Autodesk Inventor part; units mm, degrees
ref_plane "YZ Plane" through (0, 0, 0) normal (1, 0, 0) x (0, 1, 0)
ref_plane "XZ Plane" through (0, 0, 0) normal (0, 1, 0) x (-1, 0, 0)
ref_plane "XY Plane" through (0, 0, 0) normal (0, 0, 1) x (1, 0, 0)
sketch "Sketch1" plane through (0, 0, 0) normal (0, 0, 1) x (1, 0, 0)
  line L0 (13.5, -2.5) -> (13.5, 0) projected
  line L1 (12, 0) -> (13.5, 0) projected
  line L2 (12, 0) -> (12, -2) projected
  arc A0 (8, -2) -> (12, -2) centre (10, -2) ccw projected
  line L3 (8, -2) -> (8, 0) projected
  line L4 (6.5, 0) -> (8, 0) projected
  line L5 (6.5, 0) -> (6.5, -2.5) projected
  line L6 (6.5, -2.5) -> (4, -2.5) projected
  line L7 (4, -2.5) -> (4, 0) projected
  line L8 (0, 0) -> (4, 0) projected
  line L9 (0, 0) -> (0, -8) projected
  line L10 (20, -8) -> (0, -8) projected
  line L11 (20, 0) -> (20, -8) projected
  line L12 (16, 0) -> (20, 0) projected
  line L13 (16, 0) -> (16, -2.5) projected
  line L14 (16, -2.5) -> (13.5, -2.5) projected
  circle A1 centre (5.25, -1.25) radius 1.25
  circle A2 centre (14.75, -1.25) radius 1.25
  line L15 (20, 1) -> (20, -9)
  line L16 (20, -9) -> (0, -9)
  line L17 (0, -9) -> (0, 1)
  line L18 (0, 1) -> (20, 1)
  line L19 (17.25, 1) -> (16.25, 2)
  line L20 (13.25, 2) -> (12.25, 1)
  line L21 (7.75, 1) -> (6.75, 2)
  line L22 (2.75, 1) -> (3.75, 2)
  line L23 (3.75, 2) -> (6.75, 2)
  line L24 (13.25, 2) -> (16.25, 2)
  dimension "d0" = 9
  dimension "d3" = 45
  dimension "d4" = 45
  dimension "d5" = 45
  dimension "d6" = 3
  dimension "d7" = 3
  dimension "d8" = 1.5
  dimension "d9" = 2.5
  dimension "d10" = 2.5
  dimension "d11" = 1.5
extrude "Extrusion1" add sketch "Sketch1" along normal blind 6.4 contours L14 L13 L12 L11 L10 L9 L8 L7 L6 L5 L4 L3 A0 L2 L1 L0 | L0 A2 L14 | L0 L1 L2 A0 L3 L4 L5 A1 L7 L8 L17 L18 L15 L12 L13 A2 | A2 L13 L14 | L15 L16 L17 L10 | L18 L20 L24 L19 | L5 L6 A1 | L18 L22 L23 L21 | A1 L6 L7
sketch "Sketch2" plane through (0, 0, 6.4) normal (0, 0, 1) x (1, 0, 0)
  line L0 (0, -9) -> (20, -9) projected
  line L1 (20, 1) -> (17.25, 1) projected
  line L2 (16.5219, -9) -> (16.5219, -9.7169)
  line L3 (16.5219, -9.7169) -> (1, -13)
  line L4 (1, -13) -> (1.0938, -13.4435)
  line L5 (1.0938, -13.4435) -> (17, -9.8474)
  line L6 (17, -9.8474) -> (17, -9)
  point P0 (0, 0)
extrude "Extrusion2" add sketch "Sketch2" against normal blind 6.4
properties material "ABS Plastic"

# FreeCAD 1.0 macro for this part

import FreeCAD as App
import Part
import Sketcher

V = App.Vector
Q = App.Units.Quantity

doc = App.newDocument("Part")
body = doc.addObject("PartDesign::Body", "Body")

# Sketch on XY plane
sketch1 = body.newObject("Sketcher::SketchObject", "Sketch")
sketch1.AttachmentSupport = (doc.getObject("XY_Plane"), [""])
sketch1.MapMode = "FlatFace"
sketch1.addGeometry(Part.LineSegment(V(20, 1, 0), V(17.25, 1, 0)), False)
sketch1.addGeometry(Part.LineSegment(V(17.25, 1, 0), V(16.25, 2, 0)), False)
sketch1.addGeometry(Part.LineSegment(V(16.25, 2, 0), V(13.25, 2, 0)), False)
sketch1.addGeometry(Part.LineSegment(V(13.25, 2, 0), V(12.25, 1, 0)), False)
sketch1.addGeometry(Part.LineSegment(V(12.25, 1, 0), V(7.75, 1, 0)), False)
sketch1.addGeometry(Part.LineSegment(V(7.75, 1, 0), V(6.75, 2, 0)), False)
sketch1.addGeometry(Part.LineSegment(V(6.75, 2, 0), V(3.75, 2, 0)), False)
sketch1.addGeometry(Part.LineSegment(V(3.75, 2, 0), V(2.75, 1, 0)), False)
sketch1.addGeometry(Part.LineSegment(V(2.75, 1, 0), V(0, 1, 0)), False)
sketch1.addGeometry(Part.LineSegment(V(0, 1, 0), V(0, -9, 0)), False)
sketch1.addGeometry(Part.LineSegment(V(0, -9, 0), V(20, -9, 0)), False)
sketch1.addGeometry(Part.LineSegment(V(20, -9, 0), V(20, 1, 0)), False)
sketch1.addGeometry(Part.Circle(V(14.75, -1.25, 0), V(0, 0, 1), 1.25), False)
sketch1.addGeometry(Part.Circle(V(5.25, -1.25, 0), V(0, 0, 1), 1.25), False)
sketch1.addConstraint(Sketcher.Constraint("Coincident", 0, 2, 1, 1))
sketch1.addConstraint(Sketcher.Constraint("Coincident", 1, 2, 2, 1))
sketch1.addConstraint(Sketcher.Constraint("Coincident", 2, 2, 3, 1))
sketch1.addConstraint(Sketcher.Constraint("Coincident", 3, 2, 4, 1))
sketch1.addConstraint(Sketcher.Constraint("Coincident", 4, 2, 5, 1))
sketch1.addConstraint(Sketcher.Constraint("Coincident", 5, 2, 6, 1))
sketch1.addConstraint(Sketcher.Constraint("Coincident", 6, 2, 7, 1))
sketch1.addConstraint(Sketcher.Constraint("Coincident", 7, 2, 8, 1))
sketch1.addConstraint(Sketcher.Constraint("Coincident", 8, 2, 9, 1))
sketch1.addConstraint(Sketcher.Constraint("Coincident", 9, 2, 10, 1))
sketch1.addConstraint(Sketcher.Constraint("Coincident", 10, 2, 11, 1))
sketch1.addConstraint(Sketcher.Constraint("Coincident", 11, 2, 0, 1))
sketch1.addConstraint(Sketcher.Constraint("Horizontal", 0))
sketch1.addConstraint(Sketcher.Constraint("Horizontal", 2))
sketch1.addConstraint(Sketcher.Constraint("Horizontal", 4))
sketch1.addConstraint(Sketcher.Constraint("Horizontal", 6))
sketch1.addConstraint(Sketcher.Constraint("Horizontal", 8))
sketch1.addConstraint(Sketcher.Constraint("Vertical", 9))
sketch1.addConstraint(Sketcher.Constraint("Horizontal", 10))
sketch1.addConstraint(Sketcher.Constraint("Vertical", 11))
sketch1.addConstraint(Sketcher.Constraint("Equal", 12, 13))
sketch1.addConstraint(Sketcher.Constraint("PointOnObject", 8, 2, -2))
sketch1.addConstraint(Sketcher.Constraint("Perpendicular", 1, 3))
sketch1.addConstraint(Sketcher.Constraint("Perpendicular", 3, 5))
sketch1.addConstraint(Sketcher.Constraint("Perpendicular", 5, 7))
sketch1.addConstraint(Sketcher.Constraint("Horizontal", 12, 3, 13, 3))
sketch1.addConstraint(Sketcher.Constraint("Horizontal", 0, 2, 3, 2))
sketch1.addConstraint(Sketcher.Constraint("Horizontal", 2, 2, 5, 2))
sketch1.addConstraint(Sketcher.Constraint("Horizontal", 4, 2, 7, 2))
sketch1.addConstraint(Sketcher.Constraint("Equal", 2, 6))
sketch1.addConstraint(Sketcher.Constraint("Equal", 0, 8))
sketch1.addConstraint(Sketcher.Constraint("Equal", 1, 3))
sketch1.addConstraint(Sketcher.Constraint("Diameter", 12, 2.5))
sketch1.addConstraint(Sketcher.Constraint("DistanceX", 2, 2, 2, 1, 3.0))
sketch1.addConstraint(Sketcher.Constraint("DistanceY", 9, 2, -1, 1, 9.0))
sketch1.addConstraint(Sketcher.Constraint("DistanceX", 12, 3, 0, 2, 2.5))
sketch1.addConstraint(Sketcher.Constraint("DistanceX", 12, 3, 1, 2, 1.5))
sketch1.addConstraint(Sketcher.Constraint("DistanceX", 13, 3, 4, 2, 2.5))
sketch1.addConstraint(Sketcher.Constraint("DistanceX", 10, 1, 10, 2, 20.0))
sketch1.addConstraint(Sketcher.Constraint("DistanceY", 9, 2, 9, 1, 10.0))
sketch1.addConstraint(Sketcher.Constraint("DistanceX", 4, 2, 4, 1, 4.5))
sketch1.addConstraint(Sketcher.Constraint("DistanceY", 12, 3, -1, 1, 1.25))
pad1 = body.newObject("PartDesign::Pad", "Pad")
pad1.Profile = sketch1
pad1.Length = 6.4

# Sketch on XY plane
sketch2 = body.newObject("Sketcher::SketchObject", "Sketch001")
sketch2.AttachmentSupport = (doc.getObject("XY_Plane"), [""])
sketch2.MapMode = "FlatFace"
sketch2.AttachmentOffset = App.Placement(V(0, 0, 6.4), App.Rotation())
sketch2.addGeometry(Part.LineSegment(V(17, -9, 0), V(16.5219, -9, 0)), False)
sketch2.addGeometry(Part.LineSegment(V(16.5219, -9, 0), V(16.5219, -9.7169, 0)), False)
sketch2.addGeometry(Part.LineSegment(V(16.5219, -9.7169, 0), V(1, -13, 0)), False)
sketch2.addGeometry(Part.LineSegment(V(1, -13, 0), V(1.0938, -13.4435, 0)), False)
sketch2.addGeometry(Part.LineSegment(V(1.0938, -13.4435, 0), V(17, -9.8474, 0)), False)
sketch2.addGeometry(Part.LineSegment(V(17, -9.8474, 0), V(17, -9, 0)), False)
sketch2.addConstraint(Sketcher.Constraint("Coincident", 0, 2, 1, 1))
sketch2.addConstraint(Sketcher.Constraint("Coincident", 1, 2, 2, 1))
sketch2.addConstraint(Sketcher.Constraint("Coincident", 2, 2, 3, 1))
sketch2.addConstraint(Sketcher.Constraint("Coincident", 3, 2, 4, 1))
sketch2.addConstraint(Sketcher.Constraint("Coincident", 4, 2, 5, 1))
sketch2.addConstraint(Sketcher.Constraint("Coincident", 5, 2, 0, 1))
sketch2.addConstraint(Sketcher.Constraint("Horizontal", 0))
sketch2.addConstraint(Sketcher.Constraint("Vertical", 1))
sketch2.addConstraint(Sketcher.Constraint("Vertical", 5))
sketch2.addConstraint(Sketcher.Constraint("Perpendicular", 2, 3))
sketch2.addConstraint(Sketcher.Constraint("DistanceY", 0, 2, -1, 1, 9.0))
sketch2.addConstraint(Sketcher.Constraint("DistanceX", -1, 1, 2, 2, 1.0))
sketch2.addConstraint(Sketcher.Constraint("DistanceY", 2, 2, -1, 1, 13.0))
sketch2.addConstraint(Sketcher.Constraint("DistanceX", -1, 1, 4, 2, 17.0))
sketch2.addConstraint(Sketcher.Constraint("Angle", 4, Q("12.7394 deg")))
sketch2.addConstraint(Sketcher.Constraint("DistanceX", 0, 2, 0, 1, 0.478))
sketch2.addConstraint(Sketcher.Constraint("DistanceY", 1, 2, 1, 1, 0.717))
sketch2.addConstraint(Sketcher.Constraint("DistanceY", 5, 1, 5, 2, 0.8474))
pad2 = body.newObject("PartDesign::Pad", "Pad001")
pad2.Profile = sketch2
pad2.Length = 6.4
pad2.Reversed = True

doc.recompute()
